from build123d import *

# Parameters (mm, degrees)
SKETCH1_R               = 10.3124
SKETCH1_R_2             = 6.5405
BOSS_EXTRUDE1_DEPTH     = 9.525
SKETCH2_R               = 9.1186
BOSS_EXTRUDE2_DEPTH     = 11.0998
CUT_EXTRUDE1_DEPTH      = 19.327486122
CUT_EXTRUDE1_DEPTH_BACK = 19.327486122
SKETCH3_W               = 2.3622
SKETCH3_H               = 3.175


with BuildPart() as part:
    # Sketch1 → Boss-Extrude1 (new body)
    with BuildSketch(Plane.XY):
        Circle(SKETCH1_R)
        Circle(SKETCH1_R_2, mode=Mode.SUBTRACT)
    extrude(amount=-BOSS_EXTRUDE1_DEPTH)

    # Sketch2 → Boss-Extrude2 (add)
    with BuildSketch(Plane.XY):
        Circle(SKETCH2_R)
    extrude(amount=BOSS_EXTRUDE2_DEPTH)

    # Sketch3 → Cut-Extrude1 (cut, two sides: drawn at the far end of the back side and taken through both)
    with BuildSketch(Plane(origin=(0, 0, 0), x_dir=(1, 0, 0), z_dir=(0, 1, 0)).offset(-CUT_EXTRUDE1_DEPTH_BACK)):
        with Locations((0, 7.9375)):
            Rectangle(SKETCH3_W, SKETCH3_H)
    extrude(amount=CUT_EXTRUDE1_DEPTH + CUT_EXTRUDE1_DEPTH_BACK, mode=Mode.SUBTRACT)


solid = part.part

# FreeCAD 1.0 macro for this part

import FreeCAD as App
import Part
import Sketcher
from FreeCAD import Vector
Q = App.Units.Quantity


def add_polygon(sketch, points):
    """Adds a closed chain of lines whose ends are joined by coincident constraints."""
    first, n = sketch.GeometryCount, len(points)
    for a, b in zip(points, points[1:] + points[:1]):
        sketch.addGeometry(Part.LineSegment(App.Vector(*a, 0), App.Vector(*b, 0)), False)
    for i in range(n):
        sketch.addConstraint(Sketcher.Constraint("Coincident", first + i, 2, first + (i + 1) % n, 1))

doc = App.newDocument("Part")
body = doc.addObject("PartDesign::Body", "Body")

sketch1 = doc.addObject("Sketcher::SketchObject", "Sketch")
body.addObject(sketch1)
sketch1.AttachmentSupport = (doc.XY_Plane, [""])
sketch1.MapMode = "FlatFace"
sketch1.addGeometry([
    Part.Circle(Vector(0, 0, 0), Vector(0, 0, 1), 10),
    Part.Circle(Vector(0, 0, 0), Vector(0, 0, 1), 7),
], False)
sketch1.addConstraint([
    Sketcher.Constraint("Coincident", 0, 3, -1, 1),
    Sketcher.Constraint("Coincident", 1, 3, -1, 1),
    Sketcher.Constraint("Diameter", 0, Q("0.812 in")),
    Sketcher.Constraint("Diameter", 1, Q("0.515 in")),
])
pad1 = doc.addObject("PartDesign::Pad", "Pad")
body.addObject(pad1)
pad1.Profile = sketch1
pad1.Length = Q("0.375 in")
pad1.Reversed = True

sketch2 = doc.addObject("Sketcher::SketchObject", "Sketch001")
body.addObject(sketch2)
sketch2.AttachmentSupport = (doc.XY_Plane, [""])
sketch2.MapMode = "FlatFace"
sketch2.addGeometry(Part.Circle(Vector(0, 0, 0), Vector(0, 0, 1), 9), False)
sketch2.addConstraint([
    Sketcher.Constraint("Coincident", 0, 3, -1, 1),
    Sketcher.Constraint("Diameter", 0, Q("0.718 in")),
])
pad2 = doc.addObject("PartDesign::Pad", "Pad001")
body.addObject(pad2)
pad2.Profile = sketch2
pad2.Length = Q("0.437 in")

sketch3 = doc.addObject("Sketcher::SketchObject", "Sketch002")
body.addObject(sketch3)
sketch3.AttachmentSupport = (doc.XZ_Plane, [""])
sketch3.MapMode = "FlatFace"
add_polygon(sketch3, [(-1.2, -9.5), (-1.2, -6.3), (1.2, -6.3), (1.2, -9.5)])
sketch3.addConstraint([
    Sketcher.Constraint("Vertical", 0),
    Sketcher.Constraint("Horizontal", 1),
    Sketcher.Constraint("Vertical", 2),
    Sketcher.Constraint("Horizontal", 3),
    Sketcher.Constraint("DistanceX", 1, 1, 1, 2, Q("0.093 in")),
    Sketcher.Constraint("DistanceY", 0, 1, 0, 2, Q("0.125 in")),
    Sketcher.Constraint("DistanceY", 0, 2, -1, 1, Q("0.25 in")),
    Sketcher.Constraint("DistanceX", 0, 2, -1, 1, Q("0.0465 in")),
])
pocket1 = doc.addObject("PartDesign::Pocket", "Pocket")
body.addObject(pocket1)
pocket1.Profile = sketch3
pocket1.Type = "ThroughAll"
pocket1.Midplane = True

doc.recompute()
